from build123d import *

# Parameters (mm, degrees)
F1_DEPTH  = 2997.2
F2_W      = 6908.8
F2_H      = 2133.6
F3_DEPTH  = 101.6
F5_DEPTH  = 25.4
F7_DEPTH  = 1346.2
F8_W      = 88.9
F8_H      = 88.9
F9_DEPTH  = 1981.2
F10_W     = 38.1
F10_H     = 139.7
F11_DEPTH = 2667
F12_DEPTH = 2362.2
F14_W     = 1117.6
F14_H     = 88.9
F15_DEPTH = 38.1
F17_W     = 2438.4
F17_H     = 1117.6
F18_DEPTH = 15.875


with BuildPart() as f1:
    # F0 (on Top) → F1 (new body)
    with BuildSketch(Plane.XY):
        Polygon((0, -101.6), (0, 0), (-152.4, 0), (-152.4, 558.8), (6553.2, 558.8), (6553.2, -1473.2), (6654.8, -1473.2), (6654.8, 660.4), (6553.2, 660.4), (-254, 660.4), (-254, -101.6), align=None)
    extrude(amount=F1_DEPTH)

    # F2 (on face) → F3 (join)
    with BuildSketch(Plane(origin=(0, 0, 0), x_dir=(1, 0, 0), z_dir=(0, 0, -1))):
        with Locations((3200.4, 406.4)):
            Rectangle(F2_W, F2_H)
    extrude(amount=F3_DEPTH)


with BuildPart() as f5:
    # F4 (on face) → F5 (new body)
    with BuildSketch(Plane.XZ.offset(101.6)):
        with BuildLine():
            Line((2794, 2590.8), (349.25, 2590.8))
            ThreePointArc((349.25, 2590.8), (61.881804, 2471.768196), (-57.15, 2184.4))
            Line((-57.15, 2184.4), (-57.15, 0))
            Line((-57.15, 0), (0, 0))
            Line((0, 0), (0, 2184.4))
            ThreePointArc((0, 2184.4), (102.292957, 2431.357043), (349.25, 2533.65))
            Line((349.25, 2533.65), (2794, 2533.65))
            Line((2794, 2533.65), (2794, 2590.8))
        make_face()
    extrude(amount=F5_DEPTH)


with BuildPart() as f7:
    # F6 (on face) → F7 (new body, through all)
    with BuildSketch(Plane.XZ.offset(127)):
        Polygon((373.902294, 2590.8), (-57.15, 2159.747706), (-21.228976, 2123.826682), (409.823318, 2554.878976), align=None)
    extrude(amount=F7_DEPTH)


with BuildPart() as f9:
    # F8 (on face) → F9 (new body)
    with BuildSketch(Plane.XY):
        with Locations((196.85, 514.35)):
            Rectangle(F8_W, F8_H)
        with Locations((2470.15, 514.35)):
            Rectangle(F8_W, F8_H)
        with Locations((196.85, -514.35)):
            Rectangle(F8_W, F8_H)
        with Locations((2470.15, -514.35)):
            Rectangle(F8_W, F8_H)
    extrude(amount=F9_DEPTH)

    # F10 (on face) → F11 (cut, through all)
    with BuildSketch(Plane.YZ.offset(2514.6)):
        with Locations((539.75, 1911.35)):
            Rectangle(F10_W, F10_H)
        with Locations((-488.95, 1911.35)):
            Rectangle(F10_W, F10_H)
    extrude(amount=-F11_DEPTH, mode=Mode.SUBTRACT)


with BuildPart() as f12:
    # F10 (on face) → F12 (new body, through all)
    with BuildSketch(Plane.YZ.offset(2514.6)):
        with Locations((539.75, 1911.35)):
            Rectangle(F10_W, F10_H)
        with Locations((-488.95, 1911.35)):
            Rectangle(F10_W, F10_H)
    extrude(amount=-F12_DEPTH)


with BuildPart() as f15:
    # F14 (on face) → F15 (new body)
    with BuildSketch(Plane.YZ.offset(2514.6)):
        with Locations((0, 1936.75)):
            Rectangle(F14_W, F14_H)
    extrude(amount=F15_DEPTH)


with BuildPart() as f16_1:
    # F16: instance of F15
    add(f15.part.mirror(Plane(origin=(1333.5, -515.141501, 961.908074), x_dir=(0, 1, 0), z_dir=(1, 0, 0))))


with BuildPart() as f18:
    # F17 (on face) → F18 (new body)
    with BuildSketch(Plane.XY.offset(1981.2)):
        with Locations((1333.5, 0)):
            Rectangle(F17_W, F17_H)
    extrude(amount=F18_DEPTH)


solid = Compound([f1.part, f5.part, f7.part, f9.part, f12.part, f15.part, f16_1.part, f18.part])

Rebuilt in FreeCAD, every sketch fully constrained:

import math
import FreeCAD as App
import Part
import Sketcher
from FreeCAD import Vector
Q = App.Units.Quantity


def add_polygon(sketch, points):
    """Adds a closed chain of lines whose ends are joined by coincident constraints."""
    first, n = sketch.GeometryCount, len(points)
    for a, b in zip(points, points[1:] + points[:1]):
        sketch.addGeometry(Part.LineSegment(App.Vector(*a, 0), App.Vector(*b, 0)), False)
    for i in range(n):
        sketch.addConstraint(Sketcher.Constraint("Coincident", first + i, 2, first + (i + 1) % n, 1))

doc = App.newDocument("Part")
body = doc.addObject("PartDesign::Body", "Body")

# Sketch on XY plane
sketch1 = doc.addObject("Sketcher::SketchObject", "Sketch")
body.addObject(sketch1)
sketch1.AttachmentSupport = (doc.XY_Plane, [""])
sketch1.MapMode = "FlatFace"
add_polygon(sketch1, [(0, -102), (0, 0), (-152, 0), (-152, 559), (6553, 559), (6553, -1473), (6655, -1473), (6655, 660), (-254, 660), (-254, -102)])  # lines 0-9
sketch1.addConstraint([
    Sketcher.Constraint("Vertical", 0),
    Sketcher.Constraint("Horizontal", 1),
    Sketcher.Constraint("Vertical", 2),
    Sketcher.Constraint("Horizontal", 3),
    Sketcher.Constraint("Vertical", 4),
    Sketcher.Constraint("Horizontal", 5),
    Sketcher.Constraint("Vertical", 6),
    Sketcher.Constraint("Horizontal", 7),
    Sketcher.Constraint("Vertical", 8),
    Sketcher.Constraint("Horizontal", 9),
    Sketcher.Constraint("Coincident", 0, 2, -1, 1),
    Sketcher.Constraint("Equal", 5, 0),
    Sketcher.Constraint("DistanceX", 1, 2, 1, 1, Q("6 in")),
    Sketcher.Constraint("DistanceX", 3, 1, 3, 2, Q("264 in")),
    Sketcher.Constraint("DistanceX", 5, 1, 5, 2, Q("4 in")),
    Sketcher.Constraint("DistanceX", 7, 2, 7, 1, Q("272 in")),
    Sketcher.Constraint("DistanceY", 2, 1, 2, 2, Q("22 in")),
    Sketcher.Constraint("DistanceY", 4, 2, 4, 1, Q("80 in")),
    Sketcher.Constraint("DistanceY", 6, 1, 6, 2, Q("84 in")),
])
pad1 = doc.addObject("PartDesign::Pad", "Pad")
body.addObject(pad1)
pad1.Profile = sketch1
pad1.Length = Q("118 in")

# Sketch on XY plane
sketch2 = doc.addObject("Sketcher::SketchObject", "Sketch001")
body.addObject(sketch2)
sketch2.AttachmentSupport = (doc.XY_Plane, [""])
sketch2.MapMode = "FlatFace"
add_polygon(sketch2, [(-254, -1473), (-254, 660), (6655, 660), (6655, -1473)])  # lines 0-3
sketch2.addConstraint([
    Sketcher.Constraint("Vertical", 0),
    Sketcher.Constraint("Horizontal", 1),
    Sketcher.Constraint("Vertical", 2),
    Sketcher.Constraint("Horizontal", 3),
    Sketcher.Constraint("DistanceX", 1, 1, 1, 2, Q("272 in")),
    Sketcher.Constraint("DistanceY", 0, 1, 0, 2, Q("84 in")),
    Sketcher.Constraint("DistanceX", 0, 2, -1, 1, Q("10 in")),
    Sketcher.Constraint("DistanceY", -1, 1, 0, 2, Q("26 in")),
])
pad2 = doc.addObject("PartDesign::Pad", "Pad001")
body.addObject(pad2)
pad2.Profile = sketch2
pad2.Length = Q("4 in")
pad2.Reversed = True
body2 = doc.addObject("PartDesign::Body", "Body001")

# Sketch on XZ plane
sketch3 = doc.addObject("Sketcher::SketchObject", "Sketch002")
body2.addObject(sketch3)
sketch3.AttachmentSupport = (doc.getObject("XZ_Plane001"), [""])
sketch3.MapMode = "FlatFace"
sketch3.AttachmentOffset = App.Placement(Vector(0, 0, 4 * 25.4), App.Rotation())
sketch3.addGeometry([
    Part.LineSegment(Vector(2794, 2591, 0), Vector(349, 2591, 0)),  # 0
    Part.ArcOfCircle(Part.Circle(Vector(349, 2184, 0), Vector(0, 0, 1), 406), math.radians(90), math.radians(180)),  # 1
    Part.LineSegment(Vector(-57, 2184, 0), Vector(-57, 0, 0)),  # 2
    Part.LineSegment(Vector(-57, 0, 0), Vector(0, 0, 0)),  # 3
    Part.LineSegment(Vector(0, 0, 0), Vector(0, 2184, 0)),  # 4
    Part.ArcOfCircle(Part.Circle(Vector(349, 2184, 0), Vector(0, 0, 1), 349), math.radians(90), math.radians(180)),  # 5
    Part.LineSegment(Vector(349, 2534, 0), Vector(2794, 2534, 0)),  # 6
    Part.LineSegment(Vector(2794, 2534, 0), Vector(2794, 2591, 0)),  # 7
], False)
sketch3.addConstraint([
    Sketcher.Constraint("Tangent", 0, 2, 1, 1),
    Sketcher.Constraint("Tangent", 1, 2, 2, 1),
    Sketcher.Constraint("Coincident", 2, 2, 3, 1),
    Sketcher.Constraint("Coincident", 3, 2, 4, 1),
    Sketcher.Constraint("Tangent", 4, 2, 5, 2),
    Sketcher.Constraint("Tangent", 5, 1, 6, 1),
    Sketcher.Constraint("Coincident", 6, 2, 7, 1),
    Sketcher.Constraint("Coincident", 7, 2, 0, 1),
    Sketcher.Constraint("Horizontal", 0),
    Sketcher.Constraint("Vertical", 2),
    Sketcher.Constraint("Horizontal", 3),
    Sketcher.Constraint("Vertical", 4),
    Sketcher.Constraint("Horizontal", 6),
    Sketcher.Constraint("Vertical", 7),
    Sketcher.Constraint("Coincident", 3, 2, -1, 1),
    Sketcher.Constraint("Coincident", 5, 3, 1, 3),
    Sketcher.Constraint("Radius", 1, Q("16 in")),
    Sketcher.Constraint("DistanceY", 2, 2, 2, 1, Q("86 in")),
    Sketcher.Constraint("Radius", 5, Q("13.75 in")),
    Sketcher.Constraint("DistanceX", -1, 1, 6, 2, Q("110 in")),
])
pad3 = doc.addObject("PartDesign::Pad", "Pad002")
body2.addObject(pad3)
pad3.Profile = sketch3
pad3.Length = Q("1 in")
body3 = doc.addObject("PartDesign::Body", "Body002")

# Sketch on XZ plane
sketch4 = doc.addObject("Sketcher::SketchObject", "Sketch003")
body3.addObject(sketch4)
sketch4.AttachmentSupport = (doc.getObject("XZ_Plane002"), [""])
sketch4.MapMode = "FlatFace"
sketch4.AttachmentOffset = App.Placement(Vector(0, 0, 5 * 25.4), App.Rotation())
add_polygon(sketch4, [(374, 2591), (-57, 2160), (-21, 2124), (410, 2555)])  # lines 0-3
sketch4.addConstraint([
    Sketcher.Constraint("Perpendicular", 0, 1),
    Sketcher.Constraint("Perpendicular", 1, 2),
    Sketcher.Constraint("Perpendicular", 2, 3),
    Sketcher.Constraint("Distance", 0, Q("24 in")),
    Sketcher.Constraint("Distance", 1, Q("2 in")),
    Sketcher.Constraint("DistanceY", -1, 1, 3, 2, Q("102 in")),
    Sketcher.Constraint("Angle", 0, Q("-135 deg")),
    Sketcher.Constraint("DistanceX", 0, 2, -1, 1, Q("2.25 in")),
])
pad4 = doc.addObject("PartDesign::Pad", "Pad003")
body3.addObject(pad4)
pad4.Profile = sketch4
pad4.Length = Q("53 in")
body4 = doc.addObject("PartDesign::Body", "Body003")
body4.AllowCompound = True

# Sketch on XY plane
sketch5 = doc.addObject("Sketcher::SketchObject", "Sketch004")
body4.addObject(sketch5)
sketch5.AttachmentSupport = (doc.getObject("XY_Plane003"), [""])
sketch5.MapMode = "FlatFace"
add_polygon(sketch5, [(152, 559), (152, 470), (241, 470), (241, 559)])  # lines 0-3
add_polygon(sketch5, [(2426, 559), (2426, 470), (2515, 470), (2515, 559)])  # lines 4-7
add_polygon(sketch5, [(152, -470), (152, -559), (241, -559), (241, -470)])  # lines 8-11
add_polygon(sketch5, [(2426, -470), (2426, -559), (2515, -559), (2515, -470)])  # lines 12-15
sketch5.addConstraint([
    Sketcher.Constraint("Vertical", 0),
    Sketcher.Constraint("Horizontal", 1),
    Sketcher.Constraint("Vertical", 2),
    Sketcher.Constraint("Horizontal", 3),
    Sketcher.Constraint("Vertical", 4),
    Sketcher.Constraint("Horizontal", 5),
    Sketcher.Constraint("Vertical", 6),
    Sketcher.Constraint("Horizontal", 7),
    Sketcher.Constraint("Vertical", 8),
    Sketcher.Constraint("Horizontal", 9),
    Sketcher.Constraint("Vertical", 10),
    Sketcher.Constraint("Horizontal", 11),
    Sketcher.Constraint("Vertical", 12),
    Sketcher.Constraint("Horizontal", 13),
    Sketcher.Constraint("Vertical", 14),
    Sketcher.Constraint("Horizontal", 15),
    Sketcher.Constraint("Symmetric", 3, 2, 8, 2, -1),
    Sketcher.Constraint("Symmetric", 1, 2, 10, 2, -1),
    Sketcher.Constraint("Symmetric", 7, 2, 12, 2, -1),
    Sketcher.Constraint("Symmetric", 5, 2, 14, 2, -1),
    Sketcher.Constraint("Horizontal", 1, 2, 4, 2),
    Sketcher.Constraint("Horizontal", 3, 2, 6, 2),
    Sketcher.Constraint("Equal", 3, 5),
    Sketcher.Constraint("Equal", 15, 0),
    Sketcher.Constraint("DistanceX", 1, 1, 1, 2, Q("3.5 in")),
    Sketcher.Constraint("DistanceX", -1, 1, 0, 2, Q("6 in")),
    Sketcher.Constraint("DistanceY", -1, 1, 2, 2, Q("22 in")),
    Sketcher.Constraint("DistanceX", -1, 1, 5, 2, Q("99 in")),
])
pad5 = doc.addObject("PartDesign::Pad", "Pad004")
body4.addObject(pad5)
pad5.Profile = sketch5
pad5.Length = Q("78 in")

# Sketch on YZ plane
sketch6 = doc.addObject("Sketcher::SketchObject", "Sketch005")
body4.addObject(sketch6)
sketch6.AttachmentSupport = (doc.getObject("YZ_Plane003"), [""])
sketch6.MapMode = "FlatFace"
sketch6.AttachmentOffset = App.Placement(Vector(0, 0, 99 * 25.4), App.Rotation())
add_polygon(sketch6, [(521, 1981), (521, 1842), (559, 1842), (559, 1981)])  # lines 0-3
add_polygon(sketch6, [(-508, 1981), (-508, 1842), (-470, 1842), (-470, 1981)])  # lines 4-7
sketch6.addConstraint([
    Sketcher.Constraint("Vertical", 0),
    Sketcher.Constraint("Horizontal", 1),
    Sketcher.Constraint("Vertical", 2),
    Sketcher.Constraint("Horizontal", 3),
    Sketcher.Constraint("Vertical", 4),
    Sketcher.Constraint("Horizontal", 5),
    Sketcher.Constraint("Vertical", 6),
    Sketcher.Constraint("Horizontal", 7),
    Sketcher.Constraint("Horizontal", 1, 2, 4, 2),
    Sketcher.Constraint("Horizontal", 3, 2, 6, 2),
    Sketcher.Constraint("Equal", 3, 5),
    Sketcher.Constraint("DistanceX", 1, 1, 1, 2, Q("1.5 in")),
    Sketcher.Constraint("DistanceY", 0, 2, 0, 1, Q("5.5 in")),
    Sketcher.Constraint("DistanceX", -1, 1, 1, 2, Q("22 in")),
    Sketcher.Constraint("DistanceY", -1, 1, 2, 2, Q("78 in")),
    Sketcher.Constraint("DistanceX", 4, 2, -1, 1, Q("20 in")),
])
pocket1 = doc.addObject("PartDesign::Pocket", "Pocket")
body4.addObject(pocket1)
pocket1.Profile = sketch6
pocket1.Type = "ThroughAll"
body5 = doc.addObject("PartDesign::Body", "Body004")
body5.AllowCompound = True

# Sketch on YZ plane
sketch7 = doc.addObject("Sketcher::SketchObject", "Sketch006")
body5.addObject(sketch7)
sketch7.AttachmentSupport = (doc.getObject("YZ_Plane004"), [""])
sketch7.MapMode = "FlatFace"
sketch7.AttachmentOffset = App.Placement(Vector(0, 0, 99 * 25.4), App.Rotation())
add_polygon(sketch7, [(521, 1981), (521, 1842), (559, 1842), (559, 1981)])  # lines 0-3
add_polygon(sketch7, [(-508, 1981), (-508, 1842), (-470, 1842), (-470, 1981)])  # lines 4-7
sketch7.addConstraint([
    Sketcher.Constraint("Vertical", 0),
    Sketcher.Constraint("Horizontal", 1),
    Sketcher.Constraint("Vertical", 2),
    Sketcher.Constraint("Horizontal", 3),
    Sketcher.Constraint("Vertical", 4),
    Sketcher.Constraint("Horizontal", 5),
    Sketcher.Constraint("Vertical", 6),
    Sketcher.Constraint("Horizontal", 7),
    Sketcher.Constraint("Horizontal", 1, 2, 4, 2),
    Sketcher.Constraint("Horizontal", 3, 2, 6, 2),
    Sketcher.Constraint("Equal", 3, 5),
    Sketcher.Constraint("DistanceX", 1, 1, 1, 2, Q("1.5 in")),
    Sketcher.Constraint("DistanceY", 0, 2, 0, 1, Q("5.5 in")),
    Sketcher.Constraint("DistanceX", -1, 1, 1, 2, Q("22 in")),
    Sketcher.Constraint("DistanceY", -1, 1, 2, 2, Q("78 in")),
    Sketcher.Constraint("DistanceX", 4, 2, -1, 1, Q("20 in")),
])
pad6 = doc.addObject("PartDesign::Pad", "Pad005")
body5.addObject(pad6)
pad6.Profile = sketch7
pad6.Length = Q("93 in")
pad6.Reversed = True
body6 = doc.addObject("PartDesign::Body", "Body005")

# Sketch on YZ plane
sketch8 = doc.addObject("Sketcher::SketchObject", "Sketch007")
body6.addObject(sketch8)
sketch8.AttachmentSupport = (doc.getObject("YZ_Plane005"), [""])
sketch8.MapMode = "FlatFace"
sketch8.AttachmentOffset = App.Placement(Vector(0, 0, 99 * 25.4), App.Rotation())
add_polygon(sketch8, [(-559, 1981), (-559, 1892), (559, 1892), (559, 1981)])  # lines 0-3
sketch8.addConstraint([
    Sketcher.Constraint("Vertical", 0),
    Sketcher.Constraint("Horizontal", 1),
    Sketcher.Constraint("Vertical", 2),
    Sketcher.Constraint("Horizontal", 3),
    Sketcher.Constraint("DistanceX", 1, 1, 1, 2, Q("44 in")),
    Sketcher.Constraint("DistanceY", 0, 2, 0, 1, Q("3.5 in")),
    Sketcher.Constraint("DistanceX", 0, 2, -1, 1, Q("22 in")),
    Sketcher.Constraint("DistanceY", -1, 1, 2, 2, Q("78 in")),
])
pad7 = doc.addObject("PartDesign::Pad", "Pad006")
body6.addObject(pad7)
pad7.Profile = sketch8
pad7.Length = Q("1.5 in")
body7 = doc.addObject("PartDesign::Body", "Body006")
doc.recompute()

mirroring = doc.addObject("Part::Mirroring", "Mirroring")
mirroring.Source = body6
mirroring.Base = Vector(1333.5, -515.141501, 961.908074)
mirroring.Normal = Vector(1, 0, 0)
body7.BaseFeature = mirroring
doc.recompute()
body8 = doc.addObject("PartDesign::Body", "Body007")

# Sketch on XY plane
sketch9 = doc.addObject("Sketcher::SketchObject", "Sketch008")
body8.addObject(sketch9)
sketch9.AttachmentSupport = (doc.getObject("XY_Plane007"), [""])
sketch9.MapMode = "FlatFace"
sketch9.AttachmentOffset = App.Placement(Vector(0, 0, 78 * 25.4), App.Rotation())
add_polygon(sketch9, [(114, 559), (114, -559), (2553, -559), (2553, 559)])  # lines 0-3
sketch9.addConstraint([
    Sketcher.Constraint("Vertical", 0),
    Sketcher.Constraint("Horizontal", 1),
    Sketcher.Constraint("Vertical", 2),
    Sketcher.Constraint("Horizontal", 3),
    Sketcher.Constraint("DistanceX", 1, 1, 1, 2, Q("96 in")),
    Sketcher.Constraint("DistanceY", 0, 2, 0, 1, Q("44 in")),
    Sketcher.Constraint("DistanceY", 0, 2, -1, 1, Q("22 in")),
    Sketcher.Constraint("DistanceX", -1, 1, 0, 2, Q("4.5 in")),
])
pad8 = doc.addObject("PartDesign::Pad", "Pad007")
body8.addObject(pad8)
pad8.Profile = sketch9
pad8.Length = Q("0.625 in")
mirroring.Visibility = False

doc.recompute()
